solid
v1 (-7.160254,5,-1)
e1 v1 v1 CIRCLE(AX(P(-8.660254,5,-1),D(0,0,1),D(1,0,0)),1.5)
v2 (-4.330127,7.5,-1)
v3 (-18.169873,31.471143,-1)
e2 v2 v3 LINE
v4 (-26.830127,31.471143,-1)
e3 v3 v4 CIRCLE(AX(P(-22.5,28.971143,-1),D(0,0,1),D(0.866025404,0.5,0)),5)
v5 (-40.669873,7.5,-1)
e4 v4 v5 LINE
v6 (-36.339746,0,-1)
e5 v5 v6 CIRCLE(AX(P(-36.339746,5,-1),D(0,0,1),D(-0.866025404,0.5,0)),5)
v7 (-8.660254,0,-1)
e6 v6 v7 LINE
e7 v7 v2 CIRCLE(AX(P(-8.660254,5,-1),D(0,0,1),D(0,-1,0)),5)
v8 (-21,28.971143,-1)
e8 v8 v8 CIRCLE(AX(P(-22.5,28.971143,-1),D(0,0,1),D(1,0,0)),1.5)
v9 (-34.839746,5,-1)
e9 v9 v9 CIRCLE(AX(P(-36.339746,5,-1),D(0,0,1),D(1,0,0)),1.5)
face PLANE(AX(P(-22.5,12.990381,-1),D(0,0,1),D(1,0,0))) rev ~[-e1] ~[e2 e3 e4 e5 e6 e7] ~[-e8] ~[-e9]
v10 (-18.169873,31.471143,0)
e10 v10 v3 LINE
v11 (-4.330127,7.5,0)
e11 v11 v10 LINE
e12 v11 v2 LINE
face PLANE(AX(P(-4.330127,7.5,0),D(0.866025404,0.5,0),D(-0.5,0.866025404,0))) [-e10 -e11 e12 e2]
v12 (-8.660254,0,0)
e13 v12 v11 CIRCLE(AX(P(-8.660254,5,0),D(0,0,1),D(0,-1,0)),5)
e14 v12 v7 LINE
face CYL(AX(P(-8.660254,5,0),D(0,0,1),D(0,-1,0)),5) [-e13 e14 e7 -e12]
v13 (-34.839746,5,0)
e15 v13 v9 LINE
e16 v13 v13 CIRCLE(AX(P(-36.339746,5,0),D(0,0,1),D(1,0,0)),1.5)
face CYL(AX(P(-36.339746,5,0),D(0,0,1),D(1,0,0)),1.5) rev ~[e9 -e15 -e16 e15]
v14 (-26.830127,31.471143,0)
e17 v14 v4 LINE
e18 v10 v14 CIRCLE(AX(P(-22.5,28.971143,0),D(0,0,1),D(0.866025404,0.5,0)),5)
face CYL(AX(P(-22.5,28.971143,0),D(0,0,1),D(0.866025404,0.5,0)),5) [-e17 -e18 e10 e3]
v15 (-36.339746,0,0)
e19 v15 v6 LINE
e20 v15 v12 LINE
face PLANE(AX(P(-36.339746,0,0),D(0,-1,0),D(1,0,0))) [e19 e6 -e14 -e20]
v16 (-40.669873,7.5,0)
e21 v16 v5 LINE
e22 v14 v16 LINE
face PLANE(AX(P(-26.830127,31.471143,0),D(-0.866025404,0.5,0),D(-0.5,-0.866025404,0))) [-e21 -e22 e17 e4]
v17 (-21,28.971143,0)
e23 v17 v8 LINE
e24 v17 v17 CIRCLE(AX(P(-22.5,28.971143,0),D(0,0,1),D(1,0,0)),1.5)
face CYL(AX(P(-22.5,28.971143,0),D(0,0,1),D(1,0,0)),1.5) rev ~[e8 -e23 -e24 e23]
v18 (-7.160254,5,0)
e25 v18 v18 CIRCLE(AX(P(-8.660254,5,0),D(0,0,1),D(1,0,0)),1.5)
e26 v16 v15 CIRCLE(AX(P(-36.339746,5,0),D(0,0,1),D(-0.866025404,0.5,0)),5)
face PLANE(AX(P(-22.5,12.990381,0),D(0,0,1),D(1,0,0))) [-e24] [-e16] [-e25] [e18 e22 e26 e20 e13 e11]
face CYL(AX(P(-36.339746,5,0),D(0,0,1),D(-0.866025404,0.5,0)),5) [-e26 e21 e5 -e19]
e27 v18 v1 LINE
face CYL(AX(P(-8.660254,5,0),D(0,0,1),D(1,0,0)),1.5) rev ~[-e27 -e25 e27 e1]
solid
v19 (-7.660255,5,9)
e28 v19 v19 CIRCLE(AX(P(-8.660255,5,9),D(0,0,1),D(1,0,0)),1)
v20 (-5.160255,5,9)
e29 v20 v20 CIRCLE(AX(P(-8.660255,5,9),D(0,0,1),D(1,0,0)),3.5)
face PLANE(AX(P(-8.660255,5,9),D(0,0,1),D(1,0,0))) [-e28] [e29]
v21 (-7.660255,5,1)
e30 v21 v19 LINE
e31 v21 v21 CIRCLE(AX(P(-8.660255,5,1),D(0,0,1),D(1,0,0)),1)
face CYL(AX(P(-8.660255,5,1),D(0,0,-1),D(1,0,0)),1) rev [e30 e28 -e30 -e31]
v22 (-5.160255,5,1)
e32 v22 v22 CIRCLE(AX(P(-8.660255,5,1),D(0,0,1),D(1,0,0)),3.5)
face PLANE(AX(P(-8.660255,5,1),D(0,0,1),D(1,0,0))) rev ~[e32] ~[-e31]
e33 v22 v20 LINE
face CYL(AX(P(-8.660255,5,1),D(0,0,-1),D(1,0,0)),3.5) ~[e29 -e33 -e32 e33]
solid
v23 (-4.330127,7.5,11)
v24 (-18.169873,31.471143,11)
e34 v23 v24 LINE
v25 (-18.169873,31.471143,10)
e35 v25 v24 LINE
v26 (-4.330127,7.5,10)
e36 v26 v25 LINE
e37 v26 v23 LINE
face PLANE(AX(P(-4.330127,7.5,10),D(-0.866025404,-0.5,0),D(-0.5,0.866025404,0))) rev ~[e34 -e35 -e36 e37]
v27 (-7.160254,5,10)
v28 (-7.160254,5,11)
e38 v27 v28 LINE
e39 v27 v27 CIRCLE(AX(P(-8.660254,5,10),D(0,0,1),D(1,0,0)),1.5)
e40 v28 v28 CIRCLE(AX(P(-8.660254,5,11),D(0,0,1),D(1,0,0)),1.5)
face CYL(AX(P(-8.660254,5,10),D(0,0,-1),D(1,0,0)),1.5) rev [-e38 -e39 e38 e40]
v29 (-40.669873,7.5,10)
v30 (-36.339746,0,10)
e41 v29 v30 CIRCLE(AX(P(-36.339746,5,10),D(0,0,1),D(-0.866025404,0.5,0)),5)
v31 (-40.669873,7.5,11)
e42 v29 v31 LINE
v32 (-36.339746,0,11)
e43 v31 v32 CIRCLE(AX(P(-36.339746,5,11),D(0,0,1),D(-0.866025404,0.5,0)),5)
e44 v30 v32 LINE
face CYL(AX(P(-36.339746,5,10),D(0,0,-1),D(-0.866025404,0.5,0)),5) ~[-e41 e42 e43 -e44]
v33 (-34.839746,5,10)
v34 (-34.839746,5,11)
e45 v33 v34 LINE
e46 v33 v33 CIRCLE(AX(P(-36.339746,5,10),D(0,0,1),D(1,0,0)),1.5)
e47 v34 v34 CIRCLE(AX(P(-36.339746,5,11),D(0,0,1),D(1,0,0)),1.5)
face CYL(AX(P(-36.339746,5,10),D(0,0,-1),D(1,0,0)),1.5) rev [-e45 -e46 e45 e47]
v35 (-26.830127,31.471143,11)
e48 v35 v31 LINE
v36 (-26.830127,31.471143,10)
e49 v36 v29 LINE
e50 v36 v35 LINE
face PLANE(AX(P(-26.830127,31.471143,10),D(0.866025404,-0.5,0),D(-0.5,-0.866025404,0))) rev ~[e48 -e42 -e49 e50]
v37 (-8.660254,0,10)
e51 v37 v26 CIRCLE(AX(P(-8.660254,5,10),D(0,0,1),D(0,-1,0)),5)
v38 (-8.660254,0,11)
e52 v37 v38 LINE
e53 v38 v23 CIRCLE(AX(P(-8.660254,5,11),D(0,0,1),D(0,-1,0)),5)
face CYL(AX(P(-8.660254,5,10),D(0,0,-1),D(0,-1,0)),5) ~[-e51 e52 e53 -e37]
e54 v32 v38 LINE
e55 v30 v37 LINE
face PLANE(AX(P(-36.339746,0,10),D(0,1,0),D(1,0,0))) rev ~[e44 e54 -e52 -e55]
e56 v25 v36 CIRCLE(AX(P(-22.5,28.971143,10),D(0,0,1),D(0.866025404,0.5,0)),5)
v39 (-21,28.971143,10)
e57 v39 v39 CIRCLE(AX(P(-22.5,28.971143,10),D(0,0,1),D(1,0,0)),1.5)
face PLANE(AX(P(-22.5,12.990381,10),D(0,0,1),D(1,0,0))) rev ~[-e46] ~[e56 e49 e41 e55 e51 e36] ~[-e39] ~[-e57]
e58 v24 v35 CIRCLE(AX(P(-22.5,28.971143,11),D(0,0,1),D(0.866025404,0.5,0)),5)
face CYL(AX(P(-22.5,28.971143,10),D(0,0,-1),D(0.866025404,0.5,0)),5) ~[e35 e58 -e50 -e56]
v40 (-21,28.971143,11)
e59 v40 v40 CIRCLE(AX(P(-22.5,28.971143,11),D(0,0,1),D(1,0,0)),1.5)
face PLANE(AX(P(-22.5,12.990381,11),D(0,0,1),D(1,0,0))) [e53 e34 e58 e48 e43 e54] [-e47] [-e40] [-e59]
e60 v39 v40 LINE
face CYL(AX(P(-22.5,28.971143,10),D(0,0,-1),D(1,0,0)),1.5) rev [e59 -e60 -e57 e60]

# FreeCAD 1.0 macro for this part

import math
import FreeCAD as App
import Part
import Sketcher
from FreeCAD import Vector
Q = App.Units.Quantity

doc = App.newDocument("Part")
body = doc.addObject("PartDesign::Body", "Body")

# Sketch on XY plane
sketch1 = body.newObject("Sketcher::SketchObject", "Sketch")
sketch1.AttachmentSupport = (doc.getObject("XY_Plane"), [""])
sketch1.MapMode = "FlatFace"
sketch1.addGeometry([
    Part.ArcOfCircle(Part.Circle(Vector(-8.7, 5, 0), Vector(0, 0, 1), 5), math.radians(-90), math.radians(30)),  # 0
    Part.LineSegment(Vector(-4.3, 7.5, 0), Vector(-18.2, 31.5, 0)),  # 1
    Part.ArcOfCircle(Part.Circle(Vector(-22.5, 29, 0), Vector(0, 0, 1), 5), math.radians(30), math.radians(150)),  # 2
    Part.LineSegment(Vector(-26.8, 31.5, 0), Vector(-40.7, 7.5, 0)),  # 3
    Part.ArcOfCircle(Part.Circle(Vector(-36.3, 5, 0), Vector(0, 0, 1), 5), math.radians(150), math.radians(270)),  # 4
    Part.LineSegment(Vector(-36.3, 0, 0), Vector(-8.7, 0, 0)),  # 5
    Part.Circle(Vector(-36.3, 5, 0), Vector(0, 0, 1), 1.5),  # 6
    Part.Circle(Vector(-8.7, 5, 0), Vector(0, 0, 1), 1.5),  # 7
    Part.Circle(Vector(-22.5, 29, 0), Vector(0, 0, 1), 1.5),  # 8
], False)
sketch1.addConstraint([
    Sketcher.Constraint("Tangent", 0, 2, 1, 1),
    Sketcher.Constraint("Tangent", 1, 2, 2, 1),
    Sketcher.Constraint("Tangent", 2, 2, 3, 1),
    Sketcher.Constraint("Tangent", 3, 2, 4, 1),
    Sketcher.Constraint("Tangent", 4, 2, 5, 1),
    Sketcher.Constraint("Tangent", 5, 2, 0, 1),
    Sketcher.Constraint("Horizontal", 5),
    Sketcher.Constraint("Coincident", 6, 3, 4, 3),
    Sketcher.Constraint("Coincident", 7, 3, 0, 3),
    Sketcher.Constraint("Coincident", 8, 3, 2, 3),
    Sketcher.Constraint("Equal", 0, 2),
    Sketcher.Constraint("Equal", 2, 4),
    Sketcher.Constraint("Equal", 6, 7),
    Sketcher.Constraint("Equal", 7, 8),
    Sketcher.Constraint("PointOnObject", 4, 2, -1),
    Sketcher.Constraint("Horizontal", 1, 2, 2, 2),
    Sketcher.Constraint("Diameter", 6, Q("3 mm")),
    Sketcher.Constraint("Radius", 0, Q("5 mm")),
    Sketcher.Constraint("Angle", 1, Q("120 deg")),
    Sketcher.Constraint("DistanceX", 2, 3, -1, 1, Q("22.5 mm")),
    Sketcher.Constraint("DistanceX", 5, 1, 5, 2, Q("27.679492 mm")),
])
pad1 = body.newObject("PartDesign::Pad", "Pad")
pad1.Profile = sketch1
pad1.Length = 1
pad1.Reversed = True
body2 = doc.addObject("PartDesign::Body", "Body001")

# Sketch on XY plane
sketch2 = body2.newObject("Sketcher::SketchObject", "Sketch001")
sketch2.AttachmentSupport = (doc.getObject("XY_Plane001"), [""])
sketch2.MapMode = "FlatFace"
sketch2.AttachmentOffset = App.Placement(Vector(0, 0, 10), App.Rotation())
sketch2.addGeometry([
    Part.ArcOfCircle(Part.Circle(Vector(-8.7, 5, 0), Vector(0, 0, 1), 5), math.radians(-90), math.radians(30)),  # 0
    Part.LineSegment(Vector(-4.3, 7.5, 0), Vector(-18.2, 31.5, 0)),  # 1
    Part.ArcOfCircle(Part.Circle(Vector(-22.5, 29, 0), Vector(0, 0, 1), 5), math.radians(30), math.radians(150)),  # 2
    Part.LineSegment(Vector(-26.8, 31.5, 0), Vector(-40.7, 7.5, 0)),  # 3
    Part.ArcOfCircle(Part.Circle(Vector(-36.3, 5, 0), Vector(0, 0, 1), 5), math.radians(150), math.radians(270)),  # 4
    Part.LineSegment(Vector(-36.3, 0, 0), Vector(-8.7, 0, 0)),  # 5
    Part.Circle(Vector(-36.3, 5, 0), Vector(0, 0, 1), 1.5),  # 6
    Part.Circle(Vector(-8.7, 5, 0), Vector(0, 0, 1), 1.5),  # 7
    Part.Circle(Vector(-22.5, 29, 0), Vector(0, 0, 1), 1.5),  # 8
], False)
sketch2.addConstraint([
    Sketcher.Constraint("Tangent", 0, 2, 1, 1),
    Sketcher.Constraint("Tangent", 1, 2, 2, 1),
    Sketcher.Constraint("Tangent", 2, 2, 3, 1),
    Sketcher.Constraint("Tangent", 3, 2, 4, 1),
    Sketcher.Constraint("Tangent", 4, 2, 5, 1),
    Sketcher.Constraint("Tangent", 5, 2, 0, 1),
    Sketcher.Constraint("Horizontal", 5),
    Sketcher.Constraint("Coincident", 6, 3, 4, 3),
    Sketcher.Constraint("Coincident", 7, 3, 0, 3),
    Sketcher.Constraint("Coincident", 8, 3, 2, 3),
    Sketcher.Constraint("Equal", 0, 2),
    Sketcher.Constraint("Equal", 2, 4),
    Sketcher.Constraint("Equal", 6, 7),
    Sketcher.Constraint("Equal", 7, 8),
    Sketcher.Constraint("PointOnObject", 4, 2, -1),
    Sketcher.Constraint("Horizontal", 1, 2, 2, 2),
    Sketcher.Constraint("Diameter", 6, Q("3 mm")),
    Sketcher.Constraint("Radius", 0, Q("5 mm")),
    Sketcher.Constraint("Angle", 1, Q("120 deg")),
    Sketcher.Constraint("DistanceX", 2, 3, -1, 1, Q("22.5 mm")),
    Sketcher.Constraint("DistanceX", 5, 1, 5, 2, Q("27.679492 mm")),
])
pad2 = body2.newObject("PartDesign::Pad", "Pad001")
pad2.Profile = sketch2
pad2.Length = 1
body3 = doc.addObject("PartDesign::Body", "Body002")

# Sketch on XY plane
sketch3 = body3.newObject("Sketcher::SketchObject", "Sketch002")
sketch3.AttachmentSupport = (doc.getObject("XY_Plane002"), [""])
sketch3.MapMode = "FlatFace"
sketch3.AttachmentOffset = App.Placement(Vector(0, 0, 1), App.Rotation())
sketch3.addGeometry([
    Part.Circle(Vector(-8.7, 5, 0), Vector(0, 0, 1), 3.5),
    Part.Circle(Vector(-8.7, 5, 0), Vector(0, 0, 1), 1),
], False)
sketch3.addConstraint([
    Sketcher.Constraint("Coincident", 1, 3, 0, 3),
    Sketcher.Constraint("Diameter", 0, Q("7 mm")),
    Sketcher.Constraint("Diameter", 1, Q("2 mm")),
    Sketcher.Constraint("DistanceY", -1, 1, 0, 3, Q("5 mm")),
    Sketcher.Constraint("DistanceX", 0, 3, -1, 1, Q("8.660255 mm")),
])
pad3 = body3.newObject("PartDesign::Pad", "Pad002")
pad3.Profile = sketch3
pad3.Length = 8

doc.recompute()
